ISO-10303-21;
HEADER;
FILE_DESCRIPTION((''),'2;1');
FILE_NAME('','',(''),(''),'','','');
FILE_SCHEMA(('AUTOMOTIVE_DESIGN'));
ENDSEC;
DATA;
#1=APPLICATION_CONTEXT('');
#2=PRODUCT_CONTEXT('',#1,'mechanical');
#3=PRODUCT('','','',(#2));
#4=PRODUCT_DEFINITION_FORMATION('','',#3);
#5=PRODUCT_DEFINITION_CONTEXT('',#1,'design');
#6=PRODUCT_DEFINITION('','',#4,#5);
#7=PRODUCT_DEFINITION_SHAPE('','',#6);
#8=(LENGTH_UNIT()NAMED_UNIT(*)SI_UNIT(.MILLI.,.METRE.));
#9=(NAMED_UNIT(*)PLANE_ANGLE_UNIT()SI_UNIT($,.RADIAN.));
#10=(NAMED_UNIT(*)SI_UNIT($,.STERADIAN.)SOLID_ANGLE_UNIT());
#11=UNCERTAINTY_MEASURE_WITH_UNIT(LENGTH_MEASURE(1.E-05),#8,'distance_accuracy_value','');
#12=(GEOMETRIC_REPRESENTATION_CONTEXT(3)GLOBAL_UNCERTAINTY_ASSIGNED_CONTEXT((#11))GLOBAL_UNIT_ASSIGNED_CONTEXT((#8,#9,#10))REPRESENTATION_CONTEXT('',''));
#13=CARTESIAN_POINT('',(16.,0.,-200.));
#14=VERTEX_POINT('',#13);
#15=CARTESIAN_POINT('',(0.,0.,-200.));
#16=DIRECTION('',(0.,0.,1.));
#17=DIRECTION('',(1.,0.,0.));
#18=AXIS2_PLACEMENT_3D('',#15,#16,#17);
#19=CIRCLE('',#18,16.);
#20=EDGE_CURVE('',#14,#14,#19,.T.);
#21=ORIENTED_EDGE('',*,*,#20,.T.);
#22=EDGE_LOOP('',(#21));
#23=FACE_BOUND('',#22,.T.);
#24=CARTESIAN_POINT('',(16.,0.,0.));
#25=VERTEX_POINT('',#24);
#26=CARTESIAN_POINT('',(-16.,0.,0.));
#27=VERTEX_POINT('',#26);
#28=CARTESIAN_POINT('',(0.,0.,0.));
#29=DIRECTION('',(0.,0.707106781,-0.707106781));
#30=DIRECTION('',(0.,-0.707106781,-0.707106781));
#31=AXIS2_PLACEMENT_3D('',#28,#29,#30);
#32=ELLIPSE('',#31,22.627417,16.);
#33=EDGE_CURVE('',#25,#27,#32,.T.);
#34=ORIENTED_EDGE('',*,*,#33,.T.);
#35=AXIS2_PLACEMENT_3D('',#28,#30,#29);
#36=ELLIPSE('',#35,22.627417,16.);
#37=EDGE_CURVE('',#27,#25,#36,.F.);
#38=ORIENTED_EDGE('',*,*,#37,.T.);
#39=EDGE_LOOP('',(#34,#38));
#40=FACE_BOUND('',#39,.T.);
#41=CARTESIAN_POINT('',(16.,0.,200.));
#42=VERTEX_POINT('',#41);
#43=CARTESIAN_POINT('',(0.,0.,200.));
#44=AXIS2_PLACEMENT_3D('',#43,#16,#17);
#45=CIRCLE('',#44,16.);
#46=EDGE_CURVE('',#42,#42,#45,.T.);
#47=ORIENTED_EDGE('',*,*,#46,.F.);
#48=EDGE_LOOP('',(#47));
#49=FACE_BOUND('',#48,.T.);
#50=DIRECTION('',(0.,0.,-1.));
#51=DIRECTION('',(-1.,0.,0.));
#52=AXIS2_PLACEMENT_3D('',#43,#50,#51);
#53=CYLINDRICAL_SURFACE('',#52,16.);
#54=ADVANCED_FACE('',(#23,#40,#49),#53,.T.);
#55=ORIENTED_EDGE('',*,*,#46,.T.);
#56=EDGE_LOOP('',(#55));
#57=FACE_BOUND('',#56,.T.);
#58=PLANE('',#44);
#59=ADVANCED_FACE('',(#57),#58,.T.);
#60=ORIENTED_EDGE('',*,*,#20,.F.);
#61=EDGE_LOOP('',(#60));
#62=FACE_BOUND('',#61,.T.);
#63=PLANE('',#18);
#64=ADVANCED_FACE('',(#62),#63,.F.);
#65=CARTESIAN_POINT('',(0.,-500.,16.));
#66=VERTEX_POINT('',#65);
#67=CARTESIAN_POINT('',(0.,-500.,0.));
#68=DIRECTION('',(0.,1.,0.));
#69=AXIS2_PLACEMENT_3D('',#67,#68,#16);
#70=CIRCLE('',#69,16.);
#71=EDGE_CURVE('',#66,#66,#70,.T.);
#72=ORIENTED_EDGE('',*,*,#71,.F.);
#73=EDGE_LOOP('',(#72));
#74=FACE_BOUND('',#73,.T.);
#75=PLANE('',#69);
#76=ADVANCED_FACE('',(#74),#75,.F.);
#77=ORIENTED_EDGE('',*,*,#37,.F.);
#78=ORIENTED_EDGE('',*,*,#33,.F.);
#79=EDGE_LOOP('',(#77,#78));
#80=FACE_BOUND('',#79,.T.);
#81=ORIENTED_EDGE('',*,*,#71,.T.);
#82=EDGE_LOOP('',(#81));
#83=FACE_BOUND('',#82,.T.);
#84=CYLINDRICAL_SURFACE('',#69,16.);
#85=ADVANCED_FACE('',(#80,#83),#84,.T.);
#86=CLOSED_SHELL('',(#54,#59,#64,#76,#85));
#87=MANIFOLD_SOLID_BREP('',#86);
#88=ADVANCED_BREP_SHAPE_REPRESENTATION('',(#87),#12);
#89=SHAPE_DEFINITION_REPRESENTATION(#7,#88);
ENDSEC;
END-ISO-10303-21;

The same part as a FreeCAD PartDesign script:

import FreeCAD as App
import Part
import Sketcher

V = App.Vector
Q = App.Units.Quantity

doc = App.newDocument("Part")
body = doc.addObject("PartDesign::Body", "Body")

# Sketch on XY plane
sketch1 = body.newObject("Sketcher::SketchObject", "Sketch")
sketch1.AttachmentSupport = (doc.getObject("XY_Plane"), [""])
sketch1.MapMode = "FlatFace"
sketch1.addGeometry(Part.Circle(V(0, 0, 0), V(0, 0, 1), 16), False)
sketch1.addConstraint([
    Sketcher.Constraint("Coincident", 0, 3, -1, 1),
    Sketcher.Constraint("Diameter", 0, Q("32 mm")),
])
pad1 = body.newObject("PartDesign::Pad", "Pad")
pad1.Profile = sketch1
pad1.Length = 400
pad1.Midplane = True

# Sketch on XZ plane
sketch2 = body.newObject("Sketcher::SketchObject", "Sketch001")
sketch2.AttachmentSupport = (doc.getObject("XZ_Plane"), [""])
sketch2.MapMode = "FlatFace"
sketch2.addGeometry(Part.Circle(V(0, 0, 0), V(0, 0, 1), 16), False)
sketch2.addConstraint([
    Sketcher.Constraint("Coincident", 0, 3, -1, 1),
    Sketcher.Constraint("Diameter", 0, Q("32 mm")),
])
pad2 = body.newObject("PartDesign::Pad", "Pad001")
pad2.Profile = sketch2
pad2.Length = 500

doc.recompute()
